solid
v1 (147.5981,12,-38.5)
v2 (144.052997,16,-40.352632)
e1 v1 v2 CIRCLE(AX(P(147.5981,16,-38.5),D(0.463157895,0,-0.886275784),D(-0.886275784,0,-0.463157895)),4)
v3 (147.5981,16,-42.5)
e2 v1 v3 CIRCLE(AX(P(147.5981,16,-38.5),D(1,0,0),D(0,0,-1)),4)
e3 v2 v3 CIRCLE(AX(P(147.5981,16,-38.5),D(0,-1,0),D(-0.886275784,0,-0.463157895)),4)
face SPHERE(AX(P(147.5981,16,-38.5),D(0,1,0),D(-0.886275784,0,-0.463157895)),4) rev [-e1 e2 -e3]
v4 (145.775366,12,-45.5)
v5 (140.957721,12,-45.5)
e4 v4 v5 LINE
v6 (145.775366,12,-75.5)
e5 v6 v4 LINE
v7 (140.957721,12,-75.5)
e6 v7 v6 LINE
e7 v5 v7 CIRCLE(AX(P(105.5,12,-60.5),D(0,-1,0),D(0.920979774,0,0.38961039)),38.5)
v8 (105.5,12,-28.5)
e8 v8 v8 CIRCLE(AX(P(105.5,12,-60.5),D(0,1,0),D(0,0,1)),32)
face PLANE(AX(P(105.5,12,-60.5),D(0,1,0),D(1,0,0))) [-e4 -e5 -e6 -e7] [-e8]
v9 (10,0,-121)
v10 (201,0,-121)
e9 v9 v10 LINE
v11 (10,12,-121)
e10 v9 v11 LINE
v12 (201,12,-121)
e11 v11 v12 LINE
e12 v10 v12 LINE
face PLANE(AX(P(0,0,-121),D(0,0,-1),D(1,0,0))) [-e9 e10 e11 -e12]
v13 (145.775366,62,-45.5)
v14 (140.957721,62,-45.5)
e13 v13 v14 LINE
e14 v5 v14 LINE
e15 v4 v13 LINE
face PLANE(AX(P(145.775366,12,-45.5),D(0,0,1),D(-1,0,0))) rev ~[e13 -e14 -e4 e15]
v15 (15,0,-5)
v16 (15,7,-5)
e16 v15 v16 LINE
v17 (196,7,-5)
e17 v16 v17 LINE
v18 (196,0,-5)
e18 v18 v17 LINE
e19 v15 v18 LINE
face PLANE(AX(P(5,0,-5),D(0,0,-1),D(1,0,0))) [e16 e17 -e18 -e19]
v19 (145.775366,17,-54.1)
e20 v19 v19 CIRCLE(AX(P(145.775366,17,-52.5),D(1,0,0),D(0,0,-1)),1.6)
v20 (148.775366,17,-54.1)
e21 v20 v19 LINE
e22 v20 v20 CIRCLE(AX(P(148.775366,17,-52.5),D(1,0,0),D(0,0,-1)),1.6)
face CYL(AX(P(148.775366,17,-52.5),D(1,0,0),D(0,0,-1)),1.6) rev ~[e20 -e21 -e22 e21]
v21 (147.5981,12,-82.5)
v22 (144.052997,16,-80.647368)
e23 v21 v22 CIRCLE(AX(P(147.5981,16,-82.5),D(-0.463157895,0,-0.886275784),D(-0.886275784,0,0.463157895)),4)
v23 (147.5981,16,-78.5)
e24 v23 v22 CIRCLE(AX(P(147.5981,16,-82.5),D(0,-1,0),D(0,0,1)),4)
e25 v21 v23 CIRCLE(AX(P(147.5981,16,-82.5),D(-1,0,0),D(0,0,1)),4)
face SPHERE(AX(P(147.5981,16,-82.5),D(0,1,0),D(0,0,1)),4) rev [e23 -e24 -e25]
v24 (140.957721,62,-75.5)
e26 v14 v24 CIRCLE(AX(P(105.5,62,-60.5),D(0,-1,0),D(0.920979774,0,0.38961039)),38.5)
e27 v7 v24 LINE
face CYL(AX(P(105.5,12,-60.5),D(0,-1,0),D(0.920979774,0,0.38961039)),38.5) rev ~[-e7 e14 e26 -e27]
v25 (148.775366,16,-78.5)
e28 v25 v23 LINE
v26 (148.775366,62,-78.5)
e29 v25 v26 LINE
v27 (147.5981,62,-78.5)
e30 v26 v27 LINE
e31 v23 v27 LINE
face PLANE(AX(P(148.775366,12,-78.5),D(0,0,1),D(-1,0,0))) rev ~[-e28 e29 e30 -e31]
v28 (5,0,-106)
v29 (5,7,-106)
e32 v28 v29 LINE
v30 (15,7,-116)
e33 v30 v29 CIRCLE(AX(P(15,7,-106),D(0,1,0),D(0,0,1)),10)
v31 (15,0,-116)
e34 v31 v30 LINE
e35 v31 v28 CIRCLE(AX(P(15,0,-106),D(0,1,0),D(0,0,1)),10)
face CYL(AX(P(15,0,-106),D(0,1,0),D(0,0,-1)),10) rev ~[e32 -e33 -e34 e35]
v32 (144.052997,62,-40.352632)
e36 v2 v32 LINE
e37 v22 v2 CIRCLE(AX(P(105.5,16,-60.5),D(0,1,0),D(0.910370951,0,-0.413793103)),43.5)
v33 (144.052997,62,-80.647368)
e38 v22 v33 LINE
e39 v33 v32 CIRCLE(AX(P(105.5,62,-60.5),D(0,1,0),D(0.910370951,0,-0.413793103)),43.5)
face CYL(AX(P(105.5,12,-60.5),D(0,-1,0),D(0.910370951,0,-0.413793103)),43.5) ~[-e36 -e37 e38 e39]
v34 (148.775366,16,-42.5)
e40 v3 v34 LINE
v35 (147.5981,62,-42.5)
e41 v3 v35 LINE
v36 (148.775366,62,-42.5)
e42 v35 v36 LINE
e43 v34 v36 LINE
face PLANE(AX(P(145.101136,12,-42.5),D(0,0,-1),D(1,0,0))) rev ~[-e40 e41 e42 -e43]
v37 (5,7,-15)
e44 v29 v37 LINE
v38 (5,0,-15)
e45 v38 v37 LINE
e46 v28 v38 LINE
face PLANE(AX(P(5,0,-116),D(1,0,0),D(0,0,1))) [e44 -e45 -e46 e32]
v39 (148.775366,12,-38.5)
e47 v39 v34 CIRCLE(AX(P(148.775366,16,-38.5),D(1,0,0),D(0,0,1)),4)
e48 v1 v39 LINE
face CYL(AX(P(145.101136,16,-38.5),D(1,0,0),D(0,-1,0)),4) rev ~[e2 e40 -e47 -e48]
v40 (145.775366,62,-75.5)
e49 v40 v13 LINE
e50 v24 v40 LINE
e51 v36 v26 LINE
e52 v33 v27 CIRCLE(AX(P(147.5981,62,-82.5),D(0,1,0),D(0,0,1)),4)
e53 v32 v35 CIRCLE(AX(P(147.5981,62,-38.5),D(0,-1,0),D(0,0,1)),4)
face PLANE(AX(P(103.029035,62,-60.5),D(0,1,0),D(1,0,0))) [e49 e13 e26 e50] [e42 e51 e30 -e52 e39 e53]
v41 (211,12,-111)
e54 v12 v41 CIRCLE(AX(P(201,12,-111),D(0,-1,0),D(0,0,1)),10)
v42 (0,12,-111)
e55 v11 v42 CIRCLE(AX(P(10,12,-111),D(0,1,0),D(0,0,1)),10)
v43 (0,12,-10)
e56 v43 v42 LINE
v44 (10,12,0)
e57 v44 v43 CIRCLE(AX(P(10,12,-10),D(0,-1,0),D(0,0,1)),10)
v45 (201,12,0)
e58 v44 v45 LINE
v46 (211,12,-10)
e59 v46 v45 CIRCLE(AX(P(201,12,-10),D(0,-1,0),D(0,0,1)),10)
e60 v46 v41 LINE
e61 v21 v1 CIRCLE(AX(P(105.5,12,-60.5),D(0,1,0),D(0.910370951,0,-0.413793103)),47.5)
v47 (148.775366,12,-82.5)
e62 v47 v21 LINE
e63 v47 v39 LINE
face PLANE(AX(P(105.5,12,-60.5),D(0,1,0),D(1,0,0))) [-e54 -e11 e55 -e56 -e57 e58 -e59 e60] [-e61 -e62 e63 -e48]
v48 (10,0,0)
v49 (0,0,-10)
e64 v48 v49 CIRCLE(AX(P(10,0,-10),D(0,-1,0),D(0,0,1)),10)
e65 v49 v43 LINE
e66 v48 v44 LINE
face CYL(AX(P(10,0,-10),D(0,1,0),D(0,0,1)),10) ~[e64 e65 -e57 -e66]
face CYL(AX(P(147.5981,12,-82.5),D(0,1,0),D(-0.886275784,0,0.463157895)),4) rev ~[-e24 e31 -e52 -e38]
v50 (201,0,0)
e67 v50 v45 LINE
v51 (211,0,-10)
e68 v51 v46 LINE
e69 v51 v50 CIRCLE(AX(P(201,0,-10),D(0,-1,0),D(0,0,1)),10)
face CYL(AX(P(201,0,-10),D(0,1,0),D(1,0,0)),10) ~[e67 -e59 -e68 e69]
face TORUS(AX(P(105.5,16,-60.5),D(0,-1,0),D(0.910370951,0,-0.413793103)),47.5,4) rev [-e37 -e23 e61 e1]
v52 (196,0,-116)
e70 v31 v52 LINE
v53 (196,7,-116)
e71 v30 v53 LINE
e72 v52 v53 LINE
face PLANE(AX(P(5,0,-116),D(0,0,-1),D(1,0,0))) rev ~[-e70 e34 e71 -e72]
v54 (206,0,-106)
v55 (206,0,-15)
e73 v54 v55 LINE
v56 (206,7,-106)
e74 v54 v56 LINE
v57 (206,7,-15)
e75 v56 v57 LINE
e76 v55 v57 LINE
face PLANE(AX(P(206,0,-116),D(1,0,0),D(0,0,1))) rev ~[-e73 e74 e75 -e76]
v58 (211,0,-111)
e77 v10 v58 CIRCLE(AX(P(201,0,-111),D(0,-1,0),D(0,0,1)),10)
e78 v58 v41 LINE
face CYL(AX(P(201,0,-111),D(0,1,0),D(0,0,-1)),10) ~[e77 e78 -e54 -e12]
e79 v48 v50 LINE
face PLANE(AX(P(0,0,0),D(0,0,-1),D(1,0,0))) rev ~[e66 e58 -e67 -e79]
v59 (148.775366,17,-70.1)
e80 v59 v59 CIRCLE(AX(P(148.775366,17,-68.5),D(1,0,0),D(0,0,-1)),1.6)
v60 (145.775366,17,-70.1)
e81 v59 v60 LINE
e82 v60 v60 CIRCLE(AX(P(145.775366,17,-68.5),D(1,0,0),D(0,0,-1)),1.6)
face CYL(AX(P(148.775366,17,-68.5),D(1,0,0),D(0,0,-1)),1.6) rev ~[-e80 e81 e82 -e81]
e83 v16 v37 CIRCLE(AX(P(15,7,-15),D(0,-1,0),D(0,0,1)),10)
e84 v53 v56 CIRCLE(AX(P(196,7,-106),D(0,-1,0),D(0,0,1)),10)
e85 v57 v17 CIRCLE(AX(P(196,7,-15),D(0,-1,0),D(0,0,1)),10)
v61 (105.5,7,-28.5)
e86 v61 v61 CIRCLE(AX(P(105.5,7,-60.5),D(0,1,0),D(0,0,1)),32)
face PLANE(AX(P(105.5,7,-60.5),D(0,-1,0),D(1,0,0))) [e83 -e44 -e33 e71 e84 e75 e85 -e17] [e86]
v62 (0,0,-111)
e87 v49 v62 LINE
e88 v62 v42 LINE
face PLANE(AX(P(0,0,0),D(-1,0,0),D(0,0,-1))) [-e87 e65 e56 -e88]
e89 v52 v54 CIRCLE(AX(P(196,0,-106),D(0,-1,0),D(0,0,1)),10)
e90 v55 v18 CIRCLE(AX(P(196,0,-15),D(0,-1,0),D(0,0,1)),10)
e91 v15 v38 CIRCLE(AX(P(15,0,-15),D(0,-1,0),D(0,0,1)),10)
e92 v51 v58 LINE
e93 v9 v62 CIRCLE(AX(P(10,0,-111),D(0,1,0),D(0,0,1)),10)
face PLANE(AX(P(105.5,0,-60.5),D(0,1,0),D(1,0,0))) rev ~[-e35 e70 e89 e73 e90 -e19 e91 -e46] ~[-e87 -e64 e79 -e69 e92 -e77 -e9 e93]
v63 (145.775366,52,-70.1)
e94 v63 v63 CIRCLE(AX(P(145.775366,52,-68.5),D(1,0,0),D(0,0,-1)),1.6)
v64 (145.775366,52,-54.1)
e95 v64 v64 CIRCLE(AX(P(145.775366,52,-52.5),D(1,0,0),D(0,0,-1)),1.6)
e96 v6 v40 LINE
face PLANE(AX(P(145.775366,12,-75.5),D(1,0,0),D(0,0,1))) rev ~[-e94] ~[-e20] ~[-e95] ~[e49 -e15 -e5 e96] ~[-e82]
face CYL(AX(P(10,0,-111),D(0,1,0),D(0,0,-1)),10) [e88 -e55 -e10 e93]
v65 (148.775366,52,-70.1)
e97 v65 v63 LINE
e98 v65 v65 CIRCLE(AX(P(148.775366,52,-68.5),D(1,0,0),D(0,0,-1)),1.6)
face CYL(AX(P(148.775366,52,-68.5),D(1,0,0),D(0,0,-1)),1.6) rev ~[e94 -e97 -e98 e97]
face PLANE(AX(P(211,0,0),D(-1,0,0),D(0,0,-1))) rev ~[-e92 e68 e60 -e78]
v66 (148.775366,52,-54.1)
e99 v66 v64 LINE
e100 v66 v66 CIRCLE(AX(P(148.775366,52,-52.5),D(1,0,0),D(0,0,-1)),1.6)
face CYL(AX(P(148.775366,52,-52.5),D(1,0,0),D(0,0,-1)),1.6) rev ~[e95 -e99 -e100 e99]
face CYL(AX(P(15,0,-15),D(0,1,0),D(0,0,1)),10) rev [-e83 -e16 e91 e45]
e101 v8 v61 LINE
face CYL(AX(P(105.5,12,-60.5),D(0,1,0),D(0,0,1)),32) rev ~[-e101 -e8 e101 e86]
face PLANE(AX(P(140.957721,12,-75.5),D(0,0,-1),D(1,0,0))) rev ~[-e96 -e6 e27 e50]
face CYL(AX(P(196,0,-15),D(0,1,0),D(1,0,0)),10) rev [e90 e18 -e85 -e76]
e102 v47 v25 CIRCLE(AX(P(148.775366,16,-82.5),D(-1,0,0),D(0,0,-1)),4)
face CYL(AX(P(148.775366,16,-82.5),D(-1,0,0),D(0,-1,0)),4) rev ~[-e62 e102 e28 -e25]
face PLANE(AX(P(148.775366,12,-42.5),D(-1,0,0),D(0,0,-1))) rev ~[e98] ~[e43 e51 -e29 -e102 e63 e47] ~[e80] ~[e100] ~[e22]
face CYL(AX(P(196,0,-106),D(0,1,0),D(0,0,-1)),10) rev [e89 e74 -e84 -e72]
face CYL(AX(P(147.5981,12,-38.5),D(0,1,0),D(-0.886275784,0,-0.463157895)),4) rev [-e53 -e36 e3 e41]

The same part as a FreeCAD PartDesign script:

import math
import FreeCAD as App
import Part
import Sketcher
from FreeCAD import Vector
Q = App.Units.Quantity


def edges_at(feature, points):
    """Names of the edges that pass closest to the given points."""
    edges = feature.Shape.Edges
    near = lambda p: min(range(len(edges)), key=lambda i: edges[i].distToShape(Part.Vertex(*p))[0])
    return sorted({f"Edge{near(p) + 1}" for p in points})

doc = App.newDocument("Part")
body = doc.addObject("PartDesign::Body", "Body")

sketch1 = body.newObject("Sketcher::SketchObject", "Sketch")
sketch1.AttachmentSupport = (doc.getObject("XZ_Plane"), [""])
sketch1.MapMode = "FlatFace"
sketch1.addGeometry(Part.LineSegment(Vector(0, -121, 0), Vector(0, 0, 0)), False)
sketch1.addGeometry(Part.LineSegment(Vector(0, 0, 0), Vector(211, 0, 0)), False)
sketch1.addGeometry(Part.LineSegment(Vector(211, 0, 0), Vector(211, -121, 0)), False)
sketch1.addGeometry(Part.LineSegment(Vector(211, -121, 0), Vector(0, -121, 0)), False)
sketch1.addConstraint(Sketcher.Constraint("Coincident", 0, 2, 1, 1))
sketch1.addConstraint(Sketcher.Constraint("Coincident", 1, 2, 2, 1))
sketch1.addConstraint(Sketcher.Constraint("Coincident", 2, 2, 3, 1))
sketch1.addConstraint(Sketcher.Constraint("Coincident", 3, 2, 0, 1))
sketch1.addConstraint(Sketcher.Constraint("Vertical", 0))
sketch1.addConstraint(Sketcher.Constraint("Horizontal", 1))
sketch1.addConstraint(Sketcher.Constraint("Vertical", 2))
sketch1.addConstraint(Sketcher.Constraint("Horizontal", 3))
sketch1.addConstraint(Sketcher.Constraint("Coincident", 0, 2, -1, 1))
sketch1.addConstraint(Sketcher.Constraint("DistanceX", 1, 1, 1, 2, Q("211 mm")))
sketch1.addConstraint(Sketcher.Constraint("DistanceY", 0, 1, 0, 2, Q("121 mm")))
pad1 = body.newObject("PartDesign::Pad", "Pad")
pad1.Profile = sketch1
pad1.Length = 12
pad1.Reversed = True

sketch2 = body.newObject("Sketcher::SketchObject", "Sketch001")
sketch2.AttachmentSupport = (doc.getObject("XZ_Plane"), [""])
sketch2.MapMode = "FlatFace"
sketch2.addGeometry(Part.LineSegment(Vector(5, -5, 0), Vector(5, -116, 0)), False)
sketch2.addGeometry(Part.LineSegment(Vector(5, -116, 0), Vector(206, -116, 0)), False)
sketch2.addGeometry(Part.LineSegment(Vector(206, -116, 0), Vector(206, -5, 0)), False)
sketch2.addGeometry(Part.LineSegment(Vector(206, -5, 0), Vector(5, -5, 0)), False)
sketch2.addConstraint(Sketcher.Constraint("Coincident", 0, 2, 1, 1))
sketch2.addConstraint(Sketcher.Constraint("Coincident", 1, 2, 2, 1))
sketch2.addConstraint(Sketcher.Constraint("Coincident", 2, 2, 3, 1))
sketch2.addConstraint(Sketcher.Constraint("Coincident", 3, 2, 0, 1))
sketch2.addConstraint(Sketcher.Constraint("Vertical", 0))
sketch2.addConstraint(Sketcher.Constraint("Horizontal", 1))
sketch2.addConstraint(Sketcher.Constraint("Vertical", 2))
sketch2.addConstraint(Sketcher.Constraint("Horizontal", 3))
sketch2.addConstraint(Sketcher.Constraint("DistanceX", 1, 1, 1, 2, Q("201 mm")))
sketch2.addConstraint(Sketcher.Constraint("DistanceY", 0, 2, 0, 1, Q("111 mm")))
sketch2.addConstraint(Sketcher.Constraint("DistanceX", -1, 1, 0, 2, Q("5 mm")))
sketch2.addConstraint(Sketcher.Constraint("DistanceY", 0, 2, -1, 1, Q("116 mm")))
pocket1 = body.newObject("PartDesign::Pocket", "Pocket")
pocket1.Profile = sketch2
pocket1.Length = 7

sketch3 = body.newObject("Sketcher::SketchObject", "Sketch002")
sketch3.AttachmentSupport = (doc.getObject("XZ_Plane"), [""])
sketch3.MapMode = "FlatFace"
sketch3.AttachmentOffset = App.Placement(Vector(0, 0, -12), App.Rotation())
sketch3.addGeometry(Part.Circle(Vector(106, -60, 0), Vector(0, 0, 1), 32), False)
sketch3.addConstraint(Sketcher.Constraint("Diameter", 0, Q("64 mm")))
sketch3.addConstraint(Sketcher.Constraint("DistanceX", -1, 1, 0, 3, Q("105.5 mm")))
sketch3.addConstraint(Sketcher.Constraint("DistanceY", 0, 3, -1, 1, Q("60.5 mm")))
pocket2 = body.newObject("PartDesign::Pocket", "Pocket001")
pocket2.Profile = sketch3
pocket2.Type = "ThroughAll"
pocket2.Reversed = True

sketch4 = body.newObject("Sketcher::SketchObject", "Sketch003")
sketch4.AttachmentSupport = (doc.getObject("XZ_Plane"), [""])
sketch4.MapMode = "FlatFace"
sketch4.AttachmentOffset = App.Placement(Vector(0, 0, -12), App.Rotation())
sketch4.addGeometry(Part.ArcOfCircle(Part.Circle(Vector(105.5, -60.5, 0), Vector(0, 0, 1), 43.5), math.radians(24), math.radians(336)), False)
sketch4.addGeometry(Part.LineSegment(Vector(145.1, -42.5, 0), Vector(148.8, -42.5, 0)), False)
sketch4.addGeometry(Part.LineSegment(Vector(148.8, -42.5, 0), Vector(148.8, -78.5, 0)), False)
sketch4.addGeometry(Part.LineSegment(Vector(148.8, -78.5, 0), Vector(145.1, -78.5, 0)), False)
sketch4.addGeometry(Part.ArcOfCircle(Part.Circle(Vector(105.5, -60.5, 0), Vector(0, 0, 1), 38.5), math.radians(23), math.radians(337)), False)
sketch4.addGeometry(Part.LineSegment(Vector(141, -75.5, 0), Vector(145.8, -75.5, 0)), False)
sketch4.addGeometry(Part.LineSegment(Vector(145.8, -75.5, 0), Vector(145.8, -45.5, 0)), False)
sketch4.addGeometry(Part.LineSegment(Vector(145.8, -45.5, 0), Vector(141, -45.5, 0)), False)
sketch4.addConstraint(Sketcher.Constraint("Coincident", 0, 1, 1, 1))
sketch4.addConstraint(Sketcher.Constraint("Coincident", 1, 2, 2, 1))
sketch4.addConstraint(Sketcher.Constraint("Coincident", 2, 2, 3, 1))
sketch4.addConstraint(Sketcher.Constraint("Coincident", 3, 2, 0, 2))
sketch4.addConstraint(Sketcher.Constraint("Coincident", 4, 2, 5, 1))
sketch4.addConstraint(Sketcher.Constraint("Coincident", 5, 2, 6, 1))
sketch4.addConstraint(Sketcher.Constraint("Coincident", 6, 2, 7, 1))
sketch4.addConstraint(Sketcher.Constraint("Coincident", 7, 2, 4, 1))
sketch4.addConstraint(Sketcher.Constraint("Horizontal", 1))
sketch4.addConstraint(Sketcher.Constraint("Vertical", 2))
sketch4.addConstraint(Sketcher.Constraint("Horizontal", 3))
sketch4.addConstraint(Sketcher.Constraint("Horizontal", 5))
sketch4.addConstraint(Sketcher.Constraint("Vertical", 6))
sketch4.addConstraint(Sketcher.Constraint("Horizontal", 7))
sketch4.addConstraint(Sketcher.Constraint("Coincident", 4, 3, 0, 3))
sketch4.addConstraint(Sketcher.Constraint("Vertical", 0, 1, 3, 2))
sketch4.addConstraint(Sketcher.Constraint("Vertical", 4, 2, 7, 2))
sketch4.addConstraint(Sketcher.Constraint("Radius", 0, Q("43.5 mm")))
sketch4.addConstraint(Sketcher.Constraint("Radius", 4, Q("38.5 mm")))
sketch4.addConstraint(Sketcher.Constraint("DistanceY", 2, 2, 2, 1, Q("36 mm")))
sketch4.addConstraint(Sketcher.Constraint("DistanceY", 6, 1, 6, 2, Q("30 mm")))
sketch4.addConstraint(Sketcher.Constraint("DistanceX", 5, 2, 2, 2, Q("3 mm")))
sketch4.addConstraint(Sketcher.Constraint("DistanceX", -1, 1, 0, 3, Q("105.5 mm")))
sketch4.addConstraint(Sketcher.Constraint("DistanceY", 0, 3, -1, 1, Q("60.5 mm")))
sketch4.addConstraint(Sketcher.Constraint("DistanceX", 1, 1, 1, 2, Q("3.67423 mm")))
pad2 = body.newObject("PartDesign::Pad", "Pad001")
pad2.Profile = sketch4
pad2.Length = 50
pad2.Reversed = True

sketch5 = body.newObject("Sketcher::SketchObject", "Sketch004")
sketch5.AttachmentSupport = (doc.getObject("YZ_Plane"), [""])
sketch5.MapMode = "FlatFace"
sketch5.AttachmentOffset = App.Placement(Vector(0, 0, 148.775366), App.Rotation())
sketch5.addGeometry(Part.Circle(Vector(52, -52.5, 0), Vector(0, 0, 1), 1.6), False)
sketch5.addGeometry(Part.Circle(Vector(52, -68.5, 0), Vector(0, 0, 1), 1.6), False)
sketch5.addGeometry(Part.Circle(Vector(17, -68.5, 0), Vector(0, 0, 1), 1.6), False)
sketch5.addGeometry(Part.Circle(Vector(17, -52.5, 0), Vector(0, 0, 1), 1.6), False)
sketch5.addConstraint(Sketcher.Constraint("Equal", 0, 1))
sketch5.addConstraint(Sketcher.Constraint("Equal", 1, 2))
sketch5.addConstraint(Sketcher.Constraint("Equal", 2, 3))
sketch5.addConstraint(Sketcher.Constraint("Horizontal", 1, 3, 2, 3))
sketch5.addConstraint(Sketcher.Constraint("Horizontal", 0, 3, 3, 3))
sketch5.addConstraint(Sketcher.Constraint("Vertical", 0, 3, 1, 3))
sketch5.addConstraint(Sketcher.Constraint("Vertical", 2, 3, 3, 3))
sketch5.addConstraint(Sketcher.Constraint("Diameter", 0, Q("3.2 mm")))
sketch5.addConstraint(Sketcher.Constraint("DistanceX", -1, 1, 0, 3, Q("52 mm")))
sketch5.addConstraint(Sketcher.Constraint("DistanceX", -1, 1, 2, 3, Q("17 mm")))
sketch5.addConstraint(Sketcher.Constraint("DistanceY", 1, 3, 0, 3, Q("16 mm")))
sketch5.addConstraint(Sketcher.Constraint("DistanceY", 0, 3, -1, 1, Q("52.5 mm")))
pocket3 = body.newObject("PartDesign::Pocket", "Pocket002")
pocket3.Profile = sketch5
pocket3.Length = 6
doc.recompute()

fillet = body.newObject("PartDesign::Fillet", "Fillet")
fillet.Base = (pocket3, edges_at(pocket3, [
    (146.938, 12, -42.5),
    (145.101, 37, -42.5),
    (62, 12, -60.5),
    (145.101, 37, -78.5),
    (146.938, 12, -78.5),
]))
fillet.Radius = 4
doc.recompute()

fillet2 = body.newObject("PartDesign::Fillet", "Fillet001")
fillet2.Base = (fillet, edges_at(fillet, [
    (5, 3.5, -116),
    (5, 3.5, -5),
    (206, 3.5, -5),
    (206, 3.5, -116),
    (0, 6, -121),
    (211, 6, -121),
    (211, 6, 0),
    (0, 6, 0),
]))
fillet2.Radius = 10

doc.recompute()
